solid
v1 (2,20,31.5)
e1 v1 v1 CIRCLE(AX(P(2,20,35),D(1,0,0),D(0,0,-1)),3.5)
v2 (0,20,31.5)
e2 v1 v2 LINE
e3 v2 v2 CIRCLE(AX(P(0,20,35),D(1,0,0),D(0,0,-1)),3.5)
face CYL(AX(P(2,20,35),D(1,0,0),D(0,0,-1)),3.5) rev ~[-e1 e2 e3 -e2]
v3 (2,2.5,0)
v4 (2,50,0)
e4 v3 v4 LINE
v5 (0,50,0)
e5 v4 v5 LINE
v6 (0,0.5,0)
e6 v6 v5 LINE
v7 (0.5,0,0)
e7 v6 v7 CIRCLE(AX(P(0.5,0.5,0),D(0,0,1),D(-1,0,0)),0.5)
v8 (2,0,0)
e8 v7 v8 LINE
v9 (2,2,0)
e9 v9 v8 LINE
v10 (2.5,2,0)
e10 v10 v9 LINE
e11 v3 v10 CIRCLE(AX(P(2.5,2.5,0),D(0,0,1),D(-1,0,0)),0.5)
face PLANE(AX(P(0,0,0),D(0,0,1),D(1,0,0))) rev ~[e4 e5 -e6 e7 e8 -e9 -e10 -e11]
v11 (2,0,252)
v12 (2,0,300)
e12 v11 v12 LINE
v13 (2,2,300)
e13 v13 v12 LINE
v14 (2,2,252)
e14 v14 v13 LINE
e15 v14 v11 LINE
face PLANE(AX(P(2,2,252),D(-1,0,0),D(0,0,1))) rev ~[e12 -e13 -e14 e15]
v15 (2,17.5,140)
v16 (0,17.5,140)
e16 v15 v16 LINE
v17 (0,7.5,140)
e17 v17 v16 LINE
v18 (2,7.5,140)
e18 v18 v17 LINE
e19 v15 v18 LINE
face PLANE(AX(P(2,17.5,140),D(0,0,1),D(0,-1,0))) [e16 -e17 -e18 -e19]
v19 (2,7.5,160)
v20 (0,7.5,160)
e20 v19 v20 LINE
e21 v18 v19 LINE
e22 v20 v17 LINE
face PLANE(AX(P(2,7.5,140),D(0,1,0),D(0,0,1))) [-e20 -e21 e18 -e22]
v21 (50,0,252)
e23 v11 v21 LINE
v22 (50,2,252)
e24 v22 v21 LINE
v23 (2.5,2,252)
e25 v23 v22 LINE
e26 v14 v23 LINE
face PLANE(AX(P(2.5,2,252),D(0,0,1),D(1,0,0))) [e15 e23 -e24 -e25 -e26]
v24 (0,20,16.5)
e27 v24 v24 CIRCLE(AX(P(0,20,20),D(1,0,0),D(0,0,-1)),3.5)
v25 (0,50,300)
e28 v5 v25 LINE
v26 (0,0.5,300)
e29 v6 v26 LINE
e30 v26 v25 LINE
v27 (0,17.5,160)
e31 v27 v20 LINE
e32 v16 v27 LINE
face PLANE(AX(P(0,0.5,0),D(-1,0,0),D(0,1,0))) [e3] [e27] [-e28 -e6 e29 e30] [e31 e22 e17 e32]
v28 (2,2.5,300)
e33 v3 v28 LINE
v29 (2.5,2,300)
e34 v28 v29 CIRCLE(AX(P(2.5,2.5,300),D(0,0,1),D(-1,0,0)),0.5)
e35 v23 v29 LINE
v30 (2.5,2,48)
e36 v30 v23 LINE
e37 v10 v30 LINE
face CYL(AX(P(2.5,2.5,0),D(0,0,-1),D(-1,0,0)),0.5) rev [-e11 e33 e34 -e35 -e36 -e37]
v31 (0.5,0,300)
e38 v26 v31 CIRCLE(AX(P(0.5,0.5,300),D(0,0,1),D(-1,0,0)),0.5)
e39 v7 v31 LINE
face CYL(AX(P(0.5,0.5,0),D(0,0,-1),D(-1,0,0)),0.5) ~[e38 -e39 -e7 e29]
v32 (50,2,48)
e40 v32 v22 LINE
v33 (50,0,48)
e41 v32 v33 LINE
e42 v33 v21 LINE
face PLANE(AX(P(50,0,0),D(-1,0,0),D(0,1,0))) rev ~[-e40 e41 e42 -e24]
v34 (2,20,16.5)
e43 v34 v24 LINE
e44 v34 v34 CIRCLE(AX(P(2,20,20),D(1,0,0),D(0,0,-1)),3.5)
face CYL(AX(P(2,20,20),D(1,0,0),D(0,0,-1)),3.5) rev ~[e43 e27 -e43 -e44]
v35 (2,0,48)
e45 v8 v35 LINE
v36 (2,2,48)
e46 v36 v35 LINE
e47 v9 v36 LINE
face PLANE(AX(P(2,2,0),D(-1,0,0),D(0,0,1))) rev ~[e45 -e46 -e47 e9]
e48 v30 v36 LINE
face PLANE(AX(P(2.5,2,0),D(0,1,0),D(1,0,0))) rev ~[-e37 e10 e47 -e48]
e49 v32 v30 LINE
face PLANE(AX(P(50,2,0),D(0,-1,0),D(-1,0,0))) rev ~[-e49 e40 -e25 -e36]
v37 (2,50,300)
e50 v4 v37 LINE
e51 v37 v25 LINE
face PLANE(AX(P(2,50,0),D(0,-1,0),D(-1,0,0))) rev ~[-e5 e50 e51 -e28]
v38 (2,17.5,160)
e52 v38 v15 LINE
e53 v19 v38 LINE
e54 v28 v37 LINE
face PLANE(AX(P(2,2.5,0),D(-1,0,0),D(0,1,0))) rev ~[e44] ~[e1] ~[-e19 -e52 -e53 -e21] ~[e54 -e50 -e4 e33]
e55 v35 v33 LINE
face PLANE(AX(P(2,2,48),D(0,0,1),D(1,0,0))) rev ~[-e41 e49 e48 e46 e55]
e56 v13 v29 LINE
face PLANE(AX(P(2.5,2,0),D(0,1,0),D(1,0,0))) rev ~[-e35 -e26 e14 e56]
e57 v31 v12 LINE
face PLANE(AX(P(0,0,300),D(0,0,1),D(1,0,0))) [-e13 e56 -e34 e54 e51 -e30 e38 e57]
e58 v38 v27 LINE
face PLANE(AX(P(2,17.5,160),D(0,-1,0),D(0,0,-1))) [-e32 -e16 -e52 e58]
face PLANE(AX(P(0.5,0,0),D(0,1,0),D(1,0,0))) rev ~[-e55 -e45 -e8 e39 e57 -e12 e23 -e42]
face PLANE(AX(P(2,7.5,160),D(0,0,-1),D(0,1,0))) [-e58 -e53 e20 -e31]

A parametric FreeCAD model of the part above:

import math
import FreeCAD as App
import Part
import Sketcher

V = App.Vector


def add_polygon(sketch, points):
    """Adds a closed chain of lines whose ends are joined by coincident constraints."""
    first, n = sketch.GeometryCount, len(points)
    for a, b in zip(points, points[1:] + points[:1]):
        sketch.addGeometry(Part.LineSegment(App.Vector(*a, 0), App.Vector(*b, 0)), False)
    for i in range(n):
        sketch.addConstraint(Sketcher.Constraint("Coincident", first + i, 2, first + (i + 1) % n, 1))

doc = App.newDocument("Part")
body = doc.addObject("PartDesign::Body", "Body")

# Sketch on XY plane
sketch1 = body.newObject("Sketcher::SketchObject", "Sketch")
sketch1.AttachmentSupport = (doc.getObject("XY_Plane"), [""])
sketch1.MapMode = "FlatFace"
sketch1.addGeometry([
    Part.ArcOfCircle(Part.Circle(V(0.5, 0.5, 0), V(0, 0, 1), 0.5), math.radians(180), math.radians(270)),  # 0
    Part.LineSegment(V(0.5, 0, 0), V(50, 0, 0)),  # 1
    Part.LineSegment(V(50, 0, 0), V(50, 2, 0)),  # 2
    Part.LineSegment(V(50, 2, 0), V(2.5, 2, 0)),  # 3
    Part.ArcOfCircle(Part.Circle(V(2.5, 2.5, 0), V(0, 0, 1), 0.5), math.radians(180), math.radians(270)),  # 4
    Part.LineSegment(V(2, 2.5, 0), V(2, 50, 0)),  # 5
    Part.LineSegment(V(2, 50, 0), V(0, 50, 0)),  # 6
    Part.LineSegment(V(0, 50, 0), V(0, 0.5, 0)),  # 7
], False)
sketch1.addConstraint([
    Sketcher.Constraint("Tangent", 0, 2, 1, 1),
    Sketcher.Constraint("Coincident", 1, 2, 2, 1),
    Sketcher.Constraint("Coincident", 2, 2, 3, 1),
    Sketcher.Constraint("Tangent", 3, 2, 4, 2),
    Sketcher.Constraint("Tangent", 4, 1, 5, 1),
    Sketcher.Constraint("Coincident", 5, 2, 6, 1),
    Sketcher.Constraint("Coincident", 6, 2, 7, 1),
    Sketcher.Constraint("Tangent", 7, 2, 0, 1),
    Sketcher.Constraint("Horizontal", 1),
    Sketcher.Constraint("Vertical", 2),
    Sketcher.Constraint("Horizontal", 3),
    Sketcher.Constraint("Vertical", 5),
    Sketcher.Constraint("Horizontal", 6),
    Sketcher.Constraint("Vertical", 7),
    Sketcher.Constraint("Equal", 0, 4),
    Sketcher.Constraint("PointOnObject", 0, 2, -1),
    Sketcher.Constraint("PointOnObject", 6, 2, -2),
    Sketcher.Constraint("Equal", 6, 2),
    Sketcher.Constraint("Equal", 3, 5),
    Sketcher.Constraint("Radius", 0, 0.5),
    Sketcher.Constraint("DistanceX", 6, 2, 6, 1, 2.0),
    Sketcher.Constraint("DistanceX", -1, 1, 1, 2, 50.0),
])
pad1 = body.newObject("PartDesign::Pad", "Pad")
pad1.Profile = sketch1
pad1.Length = 300

# Sketch on XZ plane
sketch2 = body.newObject("Sketcher::SketchObject", "Sketch001")
sketch2.AttachmentSupport = (doc.getObject("XZ_Plane"), [""])
sketch2.MapMode = "FlatFace"
sketch2.AttachmentOffset = App.Placement(V(0, 0, -2), App.Rotation())
add_polygon(sketch2, [(2, 48), (50, 48), (50, 0), (2, 0)])  # lines 0-3
add_polygon(sketch2, [(50, 252), (2, 252), (2, 300), (50, 300)])  # lines 4-7
sketch2.addConstraint([
    Sketcher.Constraint("Horizontal", 0),
    Sketcher.Constraint("Vertical", 1),
    Sketcher.Constraint("Horizontal", 2),
    Sketcher.Constraint("Vertical", 3),
    Sketcher.Constraint("Horizontal", 4),
    Sketcher.Constraint("Vertical", 5),
    Sketcher.Constraint("Horizontal", 6),
    Sketcher.Constraint("Vertical", 7),
    Sketcher.Constraint("PointOnObject", 1, 2, -1),
    Sketcher.Constraint("Vertical", 3, 2, 4, 2),
    Sketcher.Constraint("Vertical", 1, 2, 6, 2),
    Sketcher.Constraint("Equal", 6, 1),
    Sketcher.Constraint("Equal", 3, 5),
    Sketcher.Constraint("DistanceX", 0, 1, 0, 2, 48.0),
    Sketcher.Constraint("DistanceX", -1, 1, 0, 2, 50.0),
    Sketcher.Constraint("DistanceY", -1, 1, 4, 2, 252.0),
])
pocket1 = body.newObject("PartDesign::Pocket", "Pocket")
pocket1.Profile = sketch2
pocket1.Type = "ThroughAll"
pocket1.Reversed = True

# Sketch on YZ plane
sketch3 = body.newObject("Sketcher::SketchObject", "Sketch002")
sketch3.AttachmentSupport = (doc.getObject("YZ_Plane"), [""])
sketch3.MapMode = "FlatFace"
sketch3.AttachmentOffset = App.Placement(V(0, 0, 2), App.Rotation())
sketch3.addGeometry(Part.Circle(V(20, 20, 0), V(0, 0, 1), 3.5), False)
sketch3.addConstraint([
    Sketcher.Constraint("Diameter", 0, 7.0),
    Sketcher.Constraint("DistanceX", -1, 1, 0, 3, 20.0),
    Sketcher.Constraint("DistanceY", -1, 1, 0, 3, 20.0),
])
pocket2 = body.newObject("PartDesign::Pocket", "Pocket001")
pocket2.Profile = sketch3
pocket2.Type = "ThroughAll"
doc.recompute()

linearpattern = body.newObject("PartDesign::LinearPattern", "LinearPattern")
linearpattern.Originals = [pocket2]
linearpattern.Direction = (doc.getObject("Z_Axis"), [""])
linearpattern.Mode = "offset"
linearpattern.Offset = 15
linearpattern.Occurrences = 2
body.Tip = linearpattern

# Sketch on YZ plane
sketch4 = body.newObject("Sketcher::SketchObject", "Sketch003")
sketch4.AttachmentSupport = (doc.getObject("YZ_Plane"), [""])
sketch4.MapMode = "FlatFace"
sketch4.AttachmentOffset = App.Placement(V(0, 0, 2), App.Rotation())
add_polygon(sketch4, [(18, 140), (18, 160), (8, 160), (8, 140)])  # lines 0-3
sketch4.addConstraint([
    Sketcher.Constraint("Vertical", 0),
    Sketcher.Constraint("Horizontal", 1),
    Sketcher.Constraint("Vertical", 2),
    Sketcher.Constraint("Horizontal", 3),
    Sketcher.Constraint("DistanceX", 1, 2, 1, 1, 10.0),
    Sketcher.Constraint("DistanceY", 0, 1, 0, 2, 20.0),
    Sketcher.Constraint("DistanceY", -1, 1, 0, 2, 160.0),
    Sketcher.Constraint("DistanceX", -1, 1, 0, 2, 17.5),
])
pocket3 = body.newObject("PartDesign::Pocket", "Pocket002")
pocket3.Profile = sketch4
pocket3.Type = "ThroughAll"

doc.recompute()
